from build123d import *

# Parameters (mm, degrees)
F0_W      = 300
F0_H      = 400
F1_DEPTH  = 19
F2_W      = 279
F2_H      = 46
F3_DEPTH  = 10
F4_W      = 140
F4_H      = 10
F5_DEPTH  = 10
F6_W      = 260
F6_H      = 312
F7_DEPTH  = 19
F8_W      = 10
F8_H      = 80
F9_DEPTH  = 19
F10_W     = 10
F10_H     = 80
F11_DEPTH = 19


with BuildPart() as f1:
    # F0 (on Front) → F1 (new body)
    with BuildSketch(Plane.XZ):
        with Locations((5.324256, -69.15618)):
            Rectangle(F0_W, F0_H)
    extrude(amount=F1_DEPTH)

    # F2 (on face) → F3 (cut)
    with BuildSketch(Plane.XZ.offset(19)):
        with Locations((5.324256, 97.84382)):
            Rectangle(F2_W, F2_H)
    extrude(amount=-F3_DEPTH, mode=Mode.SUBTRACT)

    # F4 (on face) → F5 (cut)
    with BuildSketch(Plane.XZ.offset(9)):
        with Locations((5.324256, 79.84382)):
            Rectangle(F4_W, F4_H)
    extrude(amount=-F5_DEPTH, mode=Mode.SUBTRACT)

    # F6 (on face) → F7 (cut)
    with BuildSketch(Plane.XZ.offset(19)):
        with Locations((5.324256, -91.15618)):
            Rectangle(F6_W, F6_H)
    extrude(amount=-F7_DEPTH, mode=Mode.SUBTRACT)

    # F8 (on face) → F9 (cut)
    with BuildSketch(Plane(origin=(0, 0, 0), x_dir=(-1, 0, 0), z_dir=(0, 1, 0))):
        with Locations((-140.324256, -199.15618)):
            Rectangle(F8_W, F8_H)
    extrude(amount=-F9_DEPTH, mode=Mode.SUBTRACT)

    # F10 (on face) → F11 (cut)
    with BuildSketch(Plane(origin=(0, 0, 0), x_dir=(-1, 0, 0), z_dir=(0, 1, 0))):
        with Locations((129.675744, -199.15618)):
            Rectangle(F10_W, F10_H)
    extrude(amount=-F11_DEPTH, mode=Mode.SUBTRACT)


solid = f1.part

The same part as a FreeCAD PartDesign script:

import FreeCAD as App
import Part
import Sketcher
Q = App.Units.Quantity

doc = App.newDocument("Part")
params = doc.addObject("Spreadsheet::Sheet", "Params")
for row, (alias, value) in enumerate([
    ("sketch1_width", "300 mm"),
    ("sketch1_height", "400 mm"),
    ("pad1_length", "19 mm"),
    ("sketch2_width", "279 mm"),
    ("sketch2_height", "46 mm"),
    ("pocket1_length", "10 mm"),
    ("sketch3_width", "140 mm"),
    ("sketch3_height", "10 mm"),
    ("pocket2_length", "10 mm"),
    ("sketch4_width", "260 mm"),
    ("sketch4_height", "312 mm"),
    ("pocket3_length", "19 mm"),
    ("sketch5_width", "10 mm"),
    ("sketch5_height", "80 mm"),
    ("pocket4_length", "19 mm"),
    ("sketch6_width", "10 mm"),
    ("sketch6_height", "80 mm"),
    ("pocket5_length", "19 mm"),
], start=1):
    params.set(f"A{row}", alias)
    params.set(f"B{row}", "=" + value)
    params.setAlias(f"B{row}", alias)

body = doc.addObject("PartDesign::Body", "Body")

sketch1 = body.newObject("Sketcher::SketchObject", "Sketch")
sketch1.AttachmentSupport = (doc.getObject("XZ_Plane"), [""])
sketch1.MapMode = "FlatFace"
sketch1.addGeometry([
    Part.LineSegment(App.Vector(-145, 131, 0), App.Vector(-145, -269, 0)),
    Part.LineSegment(App.Vector(-145, -269, 0), App.Vector(155, -269, 0)),
    Part.LineSegment(App.Vector(155, -269, 0), App.Vector(155, 131, 0)),
    Part.LineSegment(App.Vector(155, 131, 0), App.Vector(-145, 131, 0)),
], False)
sketch1.addConstraint([
    Sketcher.Constraint("Coincident", 0, 2, 1, 1),
    Sketcher.Constraint("Coincident", 1, 2, 2, 1),
    Sketcher.Constraint("Coincident", 2, 2, 3, 1),
    Sketcher.Constraint("Coincident", 3, 2, 0, 1),
    Sketcher.Constraint("Vertical", 0),
    Sketcher.Constraint("Horizontal", 1),
    Sketcher.Constraint("Vertical", 2),
    Sketcher.Constraint("Horizontal", 3),
    Sketcher.Constraint("DistanceX", 1, 1, 1, 2, Q("300 mm")),
    Sketcher.Constraint("DistanceY", 0, 2, 0, 1, Q("400 mm")),
    Sketcher.Constraint("DistanceY", 0, 2, -1, 1, Q("269.15618 mm")),
    Sketcher.Constraint("DistanceX", 0, 2, -1, 1, Q("144.675744 mm")),
])
sketch1.setExpression("Constraints[8]", "Params.sketch1_width")
sketch1.setExpression("Constraints[9]", "Params.sketch1_height")
pad1 = body.newObject("PartDesign::Pad", "Pad")
pad1.Profile = sketch1
pad1.setExpression("Length", "Params.pad1_length")

sketch2 = body.newObject("Sketcher::SketchObject", "Sketch001")
sketch2.AttachmentSupport = (doc.getObject("XZ_Plane"), [""])
sketch2.MapMode = "FlatFace"
sketch2.AttachmentOffset = App.Placement(App.Vector(0, 0, 19), App.Rotation())
sketch2.addGeometry([
    Part.LineSegment(App.Vector(-134, 121, 0), App.Vector(-134, 75, 0)),
    Part.LineSegment(App.Vector(-134, 75, 0), App.Vector(145, 75, 0)),
    Part.LineSegment(App.Vector(145, 75, 0), App.Vector(145, 121, 0)),
    Part.LineSegment(App.Vector(145, 121, 0), App.Vector(-134, 121, 0)),
], False)
sketch2.addConstraint([
    Sketcher.Constraint("Coincident", 0, 2, 1, 1),
    Sketcher.Constraint("Coincident", 1, 2, 2, 1),
    Sketcher.Constraint("Coincident", 2, 2, 3, 1),
    Sketcher.Constraint("Coincident", 3, 2, 0, 1),
    Sketcher.Constraint("Vertical", 0),
    Sketcher.Constraint("Horizontal", 1),
    Sketcher.Constraint("Vertical", 2),
    Sketcher.Constraint("Horizontal", 3),
    Sketcher.Constraint("DistanceX", 1, 1, 1, 2, Q("279 mm")),
    Sketcher.Constraint("DistanceY", 0, 2, 0, 1, Q("46 mm")),
    Sketcher.Constraint("DistanceY", -1, 1, 0, 2, Q("74.84382 mm")),
    Sketcher.Constraint("DistanceX", 0, 2, -1, 1, Q("134.175744 mm")),
])
sketch2.setExpression("Constraints[8]", "Params.sketch2_width")
sketch2.setExpression("Constraints[9]", "Params.sketch2_height")
pocket1 = body.newObject("PartDesign::Pocket", "Pocket")
pocket1.Profile = sketch2
pocket1.setExpression("Length", "Params.pocket1_length")

sketch3 = body.newObject("Sketcher::SketchObject", "Sketch002")
sketch3.AttachmentSupport = (doc.getObject("XZ_Plane"), [""])
sketch3.MapMode = "FlatFace"
sketch3.AttachmentOffset = App.Placement(App.Vector(0, 0, 9), App.Rotation())
sketch3.addGeometry([
    Part.LineSegment(App.Vector(-65, 85, 0), App.Vector(-65, 75, 0)),
    Part.LineSegment(App.Vector(-65, 75, 0), App.Vector(75, 75, 0)),
    Part.LineSegment(App.Vector(75, 75, 0), App.Vector(75, 85, 0)),
    Part.LineSegment(App.Vector(75, 85, 0), App.Vector(-65, 85, 0)),
], False)
sketch3.addConstraint([
    Sketcher.Constraint("Coincident", 0, 2, 1, 1),
    Sketcher.Constraint("Coincident", 1, 2, 2, 1),
    Sketcher.Constraint("Coincident", 2, 2, 3, 1),
    Sketcher.Constraint("Coincident", 3, 2, 0, 1),
    Sketcher.Constraint("Vertical", 0),
    Sketcher.Constraint("Horizontal", 1),
    Sketcher.Constraint("Vertical", 2),
    Sketcher.Constraint("Horizontal", 3),
    Sketcher.Constraint("DistanceX", 1, 1, 1, 2, Q("140 mm")),
    Sketcher.Constraint("DistanceY", 0, 2, 0, 1, Q("10 mm")),
    Sketcher.Constraint("DistanceY", -1, 1, 0, 2, Q("74.84382 mm")),
    Sketcher.Constraint("DistanceX", 0, 2, -1, 1, Q("64.675744 mm")),
])
sketch3.setExpression("Constraints[8]", "Params.sketch3_width")
sketch3.setExpression("Constraints[9]", "Params.sketch3_height")
pocket2 = body.newObject("PartDesign::Pocket", "Pocket001")
pocket2.Profile = sketch3
pocket2.setExpression("Length", "Params.pocket2_length")

sketch4 = body.newObject("Sketcher::SketchObject", "Sketch003")
sketch4.AttachmentSupport = (doc.getObject("XZ_Plane"), [""])
sketch4.MapMode = "FlatFace"
sketch4.AttachmentOffset = App.Placement(App.Vector(0, 0, 19), App.Rotation())
sketch4.addGeometry([
    Part.LineSegment(App.Vector(-125, 65, 0), App.Vector(-125, -247, 0)),
    Part.LineSegment(App.Vector(-125, -247, 0), App.Vector(135, -247, 0)),
    Part.LineSegment(App.Vector(135, -247, 0), App.Vector(135, 65, 0)),
    Part.LineSegment(App.Vector(135, 65, 0), App.Vector(-125, 65, 0)),
], False)
sketch4.addConstraint([
    Sketcher.Constraint("Coincident", 0, 2, 1, 1),
    Sketcher.Constraint("Coincident", 1, 2, 2, 1),
    Sketcher.Constraint("Coincident", 2, 2, 3, 1),
    Sketcher.Constraint("Coincident", 3, 2, 0, 1),
    Sketcher.Constraint("Vertical", 0),
    Sketcher.Constraint("Horizontal", 1),
    Sketcher.Constraint("Vertical", 2),
    Sketcher.Constraint("Horizontal", 3),
    Sketcher.Constraint("DistanceX", 1, 1, 1, 2, Q("260 mm")),
    Sketcher.Constraint("DistanceY", 0, 2, 0, 1, Q("312 mm")),
    Sketcher.Constraint("DistanceY", 0, 2, -1, 1, Q("247.15618 mm")),
    Sketcher.Constraint("DistanceX", 0, 2, -1, 1, Q("124.675744 mm")),
])
sketch4.setExpression("Constraints[8]", "Params.sketch4_width")
sketch4.setExpression("Constraints[9]", "Params.sketch4_height")
pocket3 = body.newObject("PartDesign::Pocket", "Pocket002")
pocket3.Profile = sketch4
pocket3.setExpression("Length", "Params.pocket3_length")

sketch5 = body.newObject("Sketcher::SketchObject", "Sketch004")
sketch5.AttachmentSupport = (doc.getObject("XZ_Plane"), [""])
sketch5.MapMode = "FlatFace"
sketch5.addGeometry([
    Part.LineSegment(App.Vector(145, -159, 0), App.Vector(145, -239, 0)),
    Part.LineSegment(App.Vector(145, -239, 0), App.Vector(135, -239, 0)),
    Part.LineSegment(App.Vector(135, -239, 0), App.Vector(135, -159, 0)),
    Part.LineSegment(App.Vector(135, -159, 0), App.Vector(145, -159, 0)),
], False)
sketch5.addConstraint([
    Sketcher.Constraint("Coincident", 0, 2, 1, 1),
    Sketcher.Constraint("Coincident", 1, 2, 2, 1),
    Sketcher.Constraint("Coincident", 2, 2, 3, 1),
    Sketcher.Constraint("Coincident", 3, 2, 0, 1),
    Sketcher.Constraint("Vertical", 0),
    Sketcher.Constraint("Horizontal", 1),
    Sketcher.Constraint("Vertical", 2),
    Sketcher.Constraint("Horizontal", 3),
    Sketcher.Constraint("DistanceX", 1, 2, 1, 1, Q("10 mm")),
    Sketcher.Constraint("DistanceY", 0, 2, 0, 1, Q("80 mm")),
    Sketcher.Constraint("DistanceY", 0, 2, -1, 1, Q("239.15618 mm")),
    Sketcher.Constraint("DistanceX", -1, 1, 0, 2, Q("145.324256 mm")),
])
sketch5.setExpression("Constraints[8]", "Params.sketch5_width")
sketch5.setExpression("Constraints[9]", "Params.sketch5_height")
pocket4 = body.newObject("PartDesign::Pocket", "Pocket003")
pocket4.Profile = sketch5
pocket4.setExpression("Length", "Params.pocket4_length")
pocket4.Reversed = True

sketch6 = body.newObject("Sketcher::SketchObject", "Sketch005")
sketch6.AttachmentSupport = (doc.getObject("XZ_Plane"), [""])
sketch6.MapMode = "FlatFace"
sketch6.addGeometry([
    Part.LineSegment(App.Vector(-125, -159, 0), App.Vector(-125, -239, 0)),
    Part.LineSegment(App.Vector(-125, -239, 0), App.Vector(-135, -239, 0)),
    Part.LineSegment(App.Vector(-135, -239, 0), App.Vector(-135, -159, 0)),
    Part.LineSegment(App.Vector(-135, -159, 0), App.Vector(-125, -159, 0)),
], False)
sketch6.addConstraint([
    Sketcher.Constraint("Coincident", 0, 2, 1, 1),
    Sketcher.Constraint("Coincident", 1, 2, 2, 1),
    Sketcher.Constraint("Coincident", 2, 2, 3, 1),
    Sketcher.Constraint("Coincident", 3, 2, 0, 1),
    Sketcher.Constraint("Vertical", 0),
    Sketcher.Constraint("Horizontal", 1),
    Sketcher.Constraint("Vertical", 2),
    Sketcher.Constraint("Horizontal", 3),
    Sketcher.Constraint("DistanceX", 1, 2, 1, 1, Q("10 mm")),
    Sketcher.Constraint("DistanceY", 0, 2, 0, 1, Q("80 mm")),
    Sketcher.Constraint("DistanceY", 0, 2, -1, 1, Q("239.15618 mm")),
    Sketcher.Constraint("DistanceX", 0, 2, -1, 1, Q("124.675744 mm")),
])
sketch6.setExpression("Constraints[8]", "Params.sketch6_width")
sketch6.setExpression("Constraints[9]", "Params.sketch6_height")
pocket5 = body.newObject("PartDesign::Pocket", "Pocket004")
pocket5.Profile = sketch6
pocket5.setExpression("Length", "Params.pocket5_length")
pocket5.Reversed = True

doc.recompute()
